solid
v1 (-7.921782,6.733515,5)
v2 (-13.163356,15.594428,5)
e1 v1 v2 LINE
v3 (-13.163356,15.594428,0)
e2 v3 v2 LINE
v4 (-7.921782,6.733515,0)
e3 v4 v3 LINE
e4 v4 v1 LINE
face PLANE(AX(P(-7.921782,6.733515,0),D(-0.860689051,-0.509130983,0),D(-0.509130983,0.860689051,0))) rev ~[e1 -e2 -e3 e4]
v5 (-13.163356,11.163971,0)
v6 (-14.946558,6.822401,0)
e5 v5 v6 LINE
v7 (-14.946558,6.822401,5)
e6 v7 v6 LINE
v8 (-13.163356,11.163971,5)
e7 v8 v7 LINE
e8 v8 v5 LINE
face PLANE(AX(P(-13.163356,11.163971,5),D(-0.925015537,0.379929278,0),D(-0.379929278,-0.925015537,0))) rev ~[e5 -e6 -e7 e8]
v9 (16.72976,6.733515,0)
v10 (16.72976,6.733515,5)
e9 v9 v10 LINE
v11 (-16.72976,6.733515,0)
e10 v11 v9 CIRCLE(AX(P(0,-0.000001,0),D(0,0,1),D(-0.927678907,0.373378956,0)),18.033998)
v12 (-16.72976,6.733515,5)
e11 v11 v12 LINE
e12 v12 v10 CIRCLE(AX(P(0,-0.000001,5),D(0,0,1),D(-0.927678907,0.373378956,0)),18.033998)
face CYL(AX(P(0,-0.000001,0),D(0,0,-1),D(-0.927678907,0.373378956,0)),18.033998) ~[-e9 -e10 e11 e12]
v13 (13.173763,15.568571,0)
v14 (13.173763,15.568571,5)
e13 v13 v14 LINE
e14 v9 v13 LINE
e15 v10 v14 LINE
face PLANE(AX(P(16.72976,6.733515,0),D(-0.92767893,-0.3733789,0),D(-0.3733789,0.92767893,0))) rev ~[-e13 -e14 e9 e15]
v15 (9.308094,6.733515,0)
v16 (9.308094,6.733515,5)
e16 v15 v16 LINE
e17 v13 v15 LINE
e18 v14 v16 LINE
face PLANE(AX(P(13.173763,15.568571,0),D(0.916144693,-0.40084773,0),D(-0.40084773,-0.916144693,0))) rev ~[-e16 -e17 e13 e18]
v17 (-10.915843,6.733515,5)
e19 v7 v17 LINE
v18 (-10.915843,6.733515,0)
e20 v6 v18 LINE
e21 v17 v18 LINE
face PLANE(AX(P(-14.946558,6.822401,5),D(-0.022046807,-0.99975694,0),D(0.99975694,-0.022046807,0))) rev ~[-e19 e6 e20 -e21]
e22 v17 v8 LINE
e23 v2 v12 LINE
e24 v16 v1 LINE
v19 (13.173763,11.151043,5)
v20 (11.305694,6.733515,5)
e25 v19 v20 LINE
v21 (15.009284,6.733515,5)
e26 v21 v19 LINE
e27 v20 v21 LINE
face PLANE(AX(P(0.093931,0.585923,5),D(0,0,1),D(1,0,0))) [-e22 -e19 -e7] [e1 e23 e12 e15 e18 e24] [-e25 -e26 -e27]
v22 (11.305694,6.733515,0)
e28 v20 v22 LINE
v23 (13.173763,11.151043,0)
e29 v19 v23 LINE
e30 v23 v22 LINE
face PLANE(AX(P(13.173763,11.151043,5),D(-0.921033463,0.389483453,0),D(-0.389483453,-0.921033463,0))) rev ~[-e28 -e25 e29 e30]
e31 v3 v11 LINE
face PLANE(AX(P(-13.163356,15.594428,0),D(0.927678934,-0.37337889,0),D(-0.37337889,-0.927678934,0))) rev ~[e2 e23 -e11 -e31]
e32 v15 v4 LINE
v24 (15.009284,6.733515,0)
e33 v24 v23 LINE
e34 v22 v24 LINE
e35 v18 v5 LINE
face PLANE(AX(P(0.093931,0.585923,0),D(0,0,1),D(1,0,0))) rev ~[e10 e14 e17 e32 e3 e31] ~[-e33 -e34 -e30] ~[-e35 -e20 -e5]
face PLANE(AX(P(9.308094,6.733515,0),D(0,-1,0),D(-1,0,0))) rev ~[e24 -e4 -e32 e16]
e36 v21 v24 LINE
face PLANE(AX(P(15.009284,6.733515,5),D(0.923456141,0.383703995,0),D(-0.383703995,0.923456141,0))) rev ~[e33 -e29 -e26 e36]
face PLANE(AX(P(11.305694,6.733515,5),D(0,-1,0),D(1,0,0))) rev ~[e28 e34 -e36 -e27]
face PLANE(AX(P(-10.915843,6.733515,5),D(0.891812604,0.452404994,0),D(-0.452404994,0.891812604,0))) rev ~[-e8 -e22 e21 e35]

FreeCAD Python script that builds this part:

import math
import FreeCAD as App
import Part
import Sketcher

V = App.Vector


def add_polygon(sketch, points):
    """Adds a closed chain of lines whose ends are joined by coincident constraints."""
    first, n = sketch.GeometryCount, len(points)
    for a, b in zip(points, points[1:] + points[:1]):
        sketch.addGeometry(Part.LineSegment(App.Vector(*a, 0), App.Vector(*b, 0)), False)
    for i in range(n):
        sketch.addConstraint(Sketcher.Constraint("Coincident", first + i, 2, first + (i + 1) % n, 1))

doc = App.newDocument("Part")
body = doc.addObject("PartDesign::Body", "Body")

# Sketch on XY plane
sketch1 = doc.addObject("Sketcher::SketchObject", "Sketch")
body.addObject(sketch1)
sketch1.AttachmentSupport = (doc.XY_Plane, [""])
sketch1.MapMode = "FlatFace"
sketch1.addGeometry(Part.LineSegment(V(-13, 16, 0), V(-17, 7, 0)), False)
sketch1.addGeometry(Part.ArcOfCircle(Part.Circle(V(0, 0, 0), V(0, 0, 1), 18), math.radians(158), math.radians(382)), False)
sketch1.addGeometry(Part.LineSegment(V(17, 7, 0), V(13, 16, 0)), False)
sketch1.addGeometry(Part.LineSegment(V(13, 16, 0), V(9, 7, 0)), False)
sketch1.addGeometry(Part.LineSegment(V(9, 7, 0), V(-8, 7, 0)), False)
sketch1.addGeometry(Part.LineSegment(V(-8, 7, 0), V(-13, 16, 0)), False)
sketch1.addConstraint(Sketcher.Constraint("Tangent", 0, 2, 1, 1))
sketch1.addConstraint(Sketcher.Constraint("Tangent", 1, 2, 2, 1))
sketch1.addConstraint(Sketcher.Constraint("Coincident", 2, 2, 3, 1))
sketch1.addConstraint(Sketcher.Constraint("Coincident", 3, 2, 4, 1))
sketch1.addConstraint(Sketcher.Constraint("Coincident", 4, 2, 5, 1))
sketch1.addConstraint(Sketcher.Constraint("Coincident", 5, 2, 0, 1))
sketch1.addConstraint(Sketcher.Constraint("Horizontal", 4))
sketch1.addConstraint(Sketcher.Constraint("Coincident", 1, 3, -1, 1))
sketch1.addConstraint(Sketcher.Constraint("Horizontal", 0, 2, 1, 2))
sketch1.addConstraint(Sketcher.Constraint("Horizontal", 1, 2, 3, 2))
sketch1.addConstraint(Sketcher.Constraint("Radius", 1, 18.033998))
sketch1.addConstraint(Sketcher.Constraint("Distance", 2, 9.52383))
sketch1.addConstraint(Sketcher.Constraint("Distance", 5, 10.295139))
sketch1.addConstraint(Sketcher.Constraint("DistanceX", 4, 2, 4, 1, 17.229876))
sketch1.addConstraint(Sketcher.Constraint("DistanceX", 0, 2, -1, 1, 16.72976))
sketch1.addConstraint(Sketcher.Constraint("DistanceY", -1, 1, 5, 2, 15.594428))
pad1 = doc.addObject("PartDesign::Pad", "Pad")
body.addObject(pad1)
pad1.Profile = sketch1
pad1.Length = 5

# Sketch on XY plane
sketch2 = doc.addObject("Sketcher::SketchObject", "Sketch001")
body.addObject(sketch2)
sketch2.AttachmentSupport = (doc.XY_Plane, [""])
sketch2.MapMode = "FlatFace"
sketch2.AttachmentOffset = App.Placement(V(0, 0, 5), App.Rotation())
add_polygon(sketch2, [(-13.2, 11.2), (-14.9, 6.8), (-10.9, 6.7)])  # lines 0-2
sketch2.addConstraint(Sketcher.Constraint("DistanceY", -1, 1, 0, 2, 6.822401))
sketch2.addConstraint(Sketcher.Constraint("DistanceX", 0, 2, 2, 2, 1.783202))
sketch2.addConstraint(Sketcher.Constraint("Distance", 0, 4.69351))
sketch2.addConstraint(Sketcher.Constraint("Distance", 1, 4.031695))
sketch2.addConstraint(Sketcher.Constraint("Distance", 2, 4.967923))
sketch2.addConstraint(Sketcher.Constraint("DistanceX", 0, 2, -1, 1, 14.946558))
pocket1 = doc.addObject("PartDesign::Pocket", "Pocket")
body.addObject(pocket1)
pocket1.Profile = sketch2
pocket1.Length = 15

# Sketch on XY plane
sketch3 = doc.addObject("Sketcher::SketchObject", "Sketch002")
body.addObject(sketch3)
sketch3.AttachmentSupport = (doc.XY_Plane, [""])
sketch3.MapMode = "FlatFace"
sketch3.AttachmentOffset = App.Placement(V(0, 0, 5), App.Rotation())
add_polygon(sketch3, [(13.2, 11.2), (11.3, 6.7), (15, 6.7)])  # lines 0-2
sketch3.addConstraint(Sketcher.Constraint("Horizontal", 1))
sketch3.addConstraint(Sketcher.Constraint("DistanceX", 1, 1, 1, 2, 3.70359))
sketch3.addConstraint(Sketcher.Constraint("Distance", 2, 4.78369))
sketch3.addConstraint(Sketcher.Constraint("DistanceX", 2, 2, 1, 2, 1.835521))
sketch3.addConstraint(Sketcher.Constraint("DistanceX", -1, 1, 0, 2, 11.305694))
sketch3.addConstraint(Sketcher.Constraint("DistanceY", -1, 1, 0, 2, 6.733515))
pocket2 = doc.addObject("PartDesign::Pocket", "Pocket001")
body.addObject(pocket2)
pocket2.Profile = sketch3
pocket2.Length = 25

doc.recompute()
